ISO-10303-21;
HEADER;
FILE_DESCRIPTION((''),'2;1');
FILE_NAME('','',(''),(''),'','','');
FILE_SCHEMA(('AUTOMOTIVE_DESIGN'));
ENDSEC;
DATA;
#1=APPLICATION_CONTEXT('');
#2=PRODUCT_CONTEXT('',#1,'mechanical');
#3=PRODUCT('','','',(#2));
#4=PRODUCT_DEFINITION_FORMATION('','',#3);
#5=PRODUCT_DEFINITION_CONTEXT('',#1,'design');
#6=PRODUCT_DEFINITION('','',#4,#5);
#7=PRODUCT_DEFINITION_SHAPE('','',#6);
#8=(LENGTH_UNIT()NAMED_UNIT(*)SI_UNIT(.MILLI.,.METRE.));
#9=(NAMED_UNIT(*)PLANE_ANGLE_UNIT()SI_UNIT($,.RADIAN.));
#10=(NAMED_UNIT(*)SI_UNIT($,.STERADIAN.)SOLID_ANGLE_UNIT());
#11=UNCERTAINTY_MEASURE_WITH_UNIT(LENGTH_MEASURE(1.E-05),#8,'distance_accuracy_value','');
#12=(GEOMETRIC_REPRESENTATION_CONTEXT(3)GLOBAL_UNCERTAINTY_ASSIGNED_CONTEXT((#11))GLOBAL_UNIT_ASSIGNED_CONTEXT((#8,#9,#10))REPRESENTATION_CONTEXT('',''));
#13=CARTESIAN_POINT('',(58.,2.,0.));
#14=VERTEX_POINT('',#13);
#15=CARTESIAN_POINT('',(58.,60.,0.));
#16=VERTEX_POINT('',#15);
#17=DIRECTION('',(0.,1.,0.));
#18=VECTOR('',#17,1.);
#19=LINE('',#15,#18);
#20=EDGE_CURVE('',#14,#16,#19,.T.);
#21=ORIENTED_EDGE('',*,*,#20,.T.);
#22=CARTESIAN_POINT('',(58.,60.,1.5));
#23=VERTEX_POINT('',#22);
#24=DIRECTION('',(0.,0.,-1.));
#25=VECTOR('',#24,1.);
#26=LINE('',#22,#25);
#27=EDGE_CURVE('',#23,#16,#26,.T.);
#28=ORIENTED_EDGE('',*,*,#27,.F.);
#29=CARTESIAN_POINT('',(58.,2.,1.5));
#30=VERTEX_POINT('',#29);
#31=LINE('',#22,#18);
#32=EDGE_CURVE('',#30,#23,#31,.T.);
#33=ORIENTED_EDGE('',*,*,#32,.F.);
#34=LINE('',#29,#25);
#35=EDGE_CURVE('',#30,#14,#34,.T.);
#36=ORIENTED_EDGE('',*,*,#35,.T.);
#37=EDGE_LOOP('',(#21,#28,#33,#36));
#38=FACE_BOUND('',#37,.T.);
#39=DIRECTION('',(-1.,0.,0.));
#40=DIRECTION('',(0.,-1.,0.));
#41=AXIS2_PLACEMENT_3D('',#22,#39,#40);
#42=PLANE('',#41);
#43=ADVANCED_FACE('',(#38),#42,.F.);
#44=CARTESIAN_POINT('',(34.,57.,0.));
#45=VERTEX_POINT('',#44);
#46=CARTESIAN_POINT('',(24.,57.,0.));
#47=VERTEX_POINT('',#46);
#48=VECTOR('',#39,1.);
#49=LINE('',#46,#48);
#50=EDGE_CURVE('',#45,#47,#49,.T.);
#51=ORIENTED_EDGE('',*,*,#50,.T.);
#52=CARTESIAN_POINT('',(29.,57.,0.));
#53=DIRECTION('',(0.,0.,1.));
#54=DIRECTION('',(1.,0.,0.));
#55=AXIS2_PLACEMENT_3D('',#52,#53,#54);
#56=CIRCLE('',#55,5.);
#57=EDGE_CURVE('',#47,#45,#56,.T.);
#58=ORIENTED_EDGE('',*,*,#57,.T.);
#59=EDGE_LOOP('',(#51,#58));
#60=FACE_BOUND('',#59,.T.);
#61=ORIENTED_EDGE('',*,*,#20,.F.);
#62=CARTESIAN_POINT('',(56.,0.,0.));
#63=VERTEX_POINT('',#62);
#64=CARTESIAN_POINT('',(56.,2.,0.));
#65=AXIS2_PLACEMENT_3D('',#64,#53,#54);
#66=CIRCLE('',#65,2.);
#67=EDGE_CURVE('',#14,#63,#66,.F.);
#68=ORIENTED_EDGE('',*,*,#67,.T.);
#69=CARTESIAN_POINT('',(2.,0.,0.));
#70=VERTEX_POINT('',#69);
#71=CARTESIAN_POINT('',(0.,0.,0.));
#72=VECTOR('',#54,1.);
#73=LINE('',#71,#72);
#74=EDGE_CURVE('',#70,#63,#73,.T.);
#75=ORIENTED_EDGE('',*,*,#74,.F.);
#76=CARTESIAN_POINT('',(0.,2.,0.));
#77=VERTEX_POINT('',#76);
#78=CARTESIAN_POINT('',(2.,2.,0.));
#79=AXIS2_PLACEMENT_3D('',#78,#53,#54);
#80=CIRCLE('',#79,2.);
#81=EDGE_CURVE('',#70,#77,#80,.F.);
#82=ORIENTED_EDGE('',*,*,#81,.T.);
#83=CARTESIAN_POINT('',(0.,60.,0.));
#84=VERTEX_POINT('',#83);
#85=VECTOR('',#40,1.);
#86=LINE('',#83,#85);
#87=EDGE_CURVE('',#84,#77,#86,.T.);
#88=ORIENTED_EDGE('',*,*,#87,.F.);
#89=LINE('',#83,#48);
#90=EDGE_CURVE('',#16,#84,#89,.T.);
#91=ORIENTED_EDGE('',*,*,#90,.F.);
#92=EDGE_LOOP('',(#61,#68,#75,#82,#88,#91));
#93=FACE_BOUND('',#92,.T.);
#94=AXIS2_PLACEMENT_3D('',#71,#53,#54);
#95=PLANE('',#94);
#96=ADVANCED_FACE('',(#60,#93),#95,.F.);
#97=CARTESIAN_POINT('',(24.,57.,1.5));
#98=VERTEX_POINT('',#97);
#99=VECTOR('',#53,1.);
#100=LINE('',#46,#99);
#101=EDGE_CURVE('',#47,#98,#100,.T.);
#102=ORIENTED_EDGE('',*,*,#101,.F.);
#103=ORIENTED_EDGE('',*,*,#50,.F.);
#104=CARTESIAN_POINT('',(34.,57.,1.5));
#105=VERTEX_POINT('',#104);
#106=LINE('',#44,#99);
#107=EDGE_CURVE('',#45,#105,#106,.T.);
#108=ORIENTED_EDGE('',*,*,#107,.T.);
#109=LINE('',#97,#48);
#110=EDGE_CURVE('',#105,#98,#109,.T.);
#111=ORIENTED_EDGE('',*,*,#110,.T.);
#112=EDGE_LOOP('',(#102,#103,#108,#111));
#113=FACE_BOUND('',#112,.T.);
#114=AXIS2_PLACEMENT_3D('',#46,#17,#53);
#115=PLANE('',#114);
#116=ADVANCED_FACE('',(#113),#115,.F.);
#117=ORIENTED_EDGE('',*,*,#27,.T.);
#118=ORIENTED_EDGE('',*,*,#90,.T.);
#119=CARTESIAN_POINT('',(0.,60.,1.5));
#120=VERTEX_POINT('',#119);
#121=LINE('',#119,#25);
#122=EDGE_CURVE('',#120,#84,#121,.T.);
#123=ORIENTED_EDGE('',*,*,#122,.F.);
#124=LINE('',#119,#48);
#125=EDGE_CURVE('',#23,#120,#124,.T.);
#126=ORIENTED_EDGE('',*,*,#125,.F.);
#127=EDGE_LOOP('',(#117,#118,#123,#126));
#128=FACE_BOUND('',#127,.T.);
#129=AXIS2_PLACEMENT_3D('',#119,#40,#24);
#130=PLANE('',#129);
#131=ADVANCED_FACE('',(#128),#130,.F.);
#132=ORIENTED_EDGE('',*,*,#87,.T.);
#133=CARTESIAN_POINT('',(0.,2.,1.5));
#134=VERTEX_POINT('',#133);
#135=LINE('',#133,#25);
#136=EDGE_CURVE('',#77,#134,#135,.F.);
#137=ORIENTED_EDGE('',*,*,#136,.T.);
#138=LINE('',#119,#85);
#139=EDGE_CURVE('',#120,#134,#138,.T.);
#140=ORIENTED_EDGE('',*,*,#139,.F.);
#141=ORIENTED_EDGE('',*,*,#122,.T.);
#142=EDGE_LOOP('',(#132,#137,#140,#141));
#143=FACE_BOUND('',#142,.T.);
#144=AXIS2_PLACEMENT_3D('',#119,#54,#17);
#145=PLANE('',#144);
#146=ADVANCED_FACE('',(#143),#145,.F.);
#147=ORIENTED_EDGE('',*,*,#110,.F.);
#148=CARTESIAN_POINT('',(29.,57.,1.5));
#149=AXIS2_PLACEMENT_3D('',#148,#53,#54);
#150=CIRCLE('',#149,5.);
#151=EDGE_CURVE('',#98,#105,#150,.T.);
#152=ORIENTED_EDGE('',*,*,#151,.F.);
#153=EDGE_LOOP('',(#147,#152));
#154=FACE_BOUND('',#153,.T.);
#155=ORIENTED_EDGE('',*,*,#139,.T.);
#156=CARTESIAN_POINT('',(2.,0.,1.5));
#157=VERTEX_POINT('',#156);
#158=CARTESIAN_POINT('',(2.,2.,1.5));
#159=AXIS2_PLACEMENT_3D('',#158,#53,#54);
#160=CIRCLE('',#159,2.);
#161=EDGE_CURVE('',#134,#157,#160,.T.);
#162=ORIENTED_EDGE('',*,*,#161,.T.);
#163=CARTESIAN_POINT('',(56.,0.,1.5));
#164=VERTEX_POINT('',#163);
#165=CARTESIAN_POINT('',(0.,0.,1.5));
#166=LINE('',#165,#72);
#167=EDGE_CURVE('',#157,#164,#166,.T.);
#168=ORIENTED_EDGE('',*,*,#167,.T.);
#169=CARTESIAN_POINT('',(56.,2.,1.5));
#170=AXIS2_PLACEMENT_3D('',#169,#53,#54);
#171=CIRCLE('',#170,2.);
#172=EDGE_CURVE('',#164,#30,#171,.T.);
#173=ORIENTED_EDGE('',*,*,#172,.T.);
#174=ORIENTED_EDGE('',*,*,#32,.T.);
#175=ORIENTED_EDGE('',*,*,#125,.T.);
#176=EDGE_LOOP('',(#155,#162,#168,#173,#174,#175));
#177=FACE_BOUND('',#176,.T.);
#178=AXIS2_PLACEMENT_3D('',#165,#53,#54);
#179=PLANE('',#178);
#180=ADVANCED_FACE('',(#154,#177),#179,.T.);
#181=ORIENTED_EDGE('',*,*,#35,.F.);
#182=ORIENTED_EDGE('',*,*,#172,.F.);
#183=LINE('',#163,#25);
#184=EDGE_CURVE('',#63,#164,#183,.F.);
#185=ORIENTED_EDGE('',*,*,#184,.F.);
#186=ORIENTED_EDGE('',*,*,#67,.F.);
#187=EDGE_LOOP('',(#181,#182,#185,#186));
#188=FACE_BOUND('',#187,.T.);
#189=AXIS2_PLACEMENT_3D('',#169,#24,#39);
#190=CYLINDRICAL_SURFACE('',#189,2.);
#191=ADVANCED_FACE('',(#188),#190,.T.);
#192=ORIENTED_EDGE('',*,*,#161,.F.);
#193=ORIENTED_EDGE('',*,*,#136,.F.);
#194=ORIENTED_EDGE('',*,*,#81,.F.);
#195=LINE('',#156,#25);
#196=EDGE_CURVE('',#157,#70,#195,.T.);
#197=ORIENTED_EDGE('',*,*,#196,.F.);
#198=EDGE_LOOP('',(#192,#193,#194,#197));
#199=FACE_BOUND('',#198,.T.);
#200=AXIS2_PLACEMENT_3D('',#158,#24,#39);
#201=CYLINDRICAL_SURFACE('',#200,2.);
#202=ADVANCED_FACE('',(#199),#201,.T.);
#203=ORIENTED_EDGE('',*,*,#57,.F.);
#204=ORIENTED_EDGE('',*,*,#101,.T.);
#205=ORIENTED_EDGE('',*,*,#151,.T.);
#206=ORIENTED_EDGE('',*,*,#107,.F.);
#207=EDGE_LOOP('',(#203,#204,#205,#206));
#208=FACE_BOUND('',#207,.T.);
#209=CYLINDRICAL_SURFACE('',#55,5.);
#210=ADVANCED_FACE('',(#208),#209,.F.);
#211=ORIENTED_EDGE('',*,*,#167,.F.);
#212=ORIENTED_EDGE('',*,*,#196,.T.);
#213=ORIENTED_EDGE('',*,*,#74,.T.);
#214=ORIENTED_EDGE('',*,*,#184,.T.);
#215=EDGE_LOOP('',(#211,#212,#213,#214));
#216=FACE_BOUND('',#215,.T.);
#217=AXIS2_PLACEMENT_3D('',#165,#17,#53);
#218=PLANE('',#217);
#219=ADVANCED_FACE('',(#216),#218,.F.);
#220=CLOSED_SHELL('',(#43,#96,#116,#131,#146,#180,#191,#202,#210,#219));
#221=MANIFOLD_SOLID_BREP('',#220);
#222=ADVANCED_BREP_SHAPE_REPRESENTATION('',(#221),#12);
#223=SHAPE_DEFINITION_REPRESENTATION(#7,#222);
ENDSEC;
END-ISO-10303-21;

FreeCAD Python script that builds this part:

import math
import FreeCAD as App
import Part
import Sketcher
Q = App.Units.Quantity


def edges_at(feature, points):
    """Names of the edges that pass closest to the given points."""
    edges = feature.Shape.Edges
    near = lambda p: min(range(len(edges)), key=lambda i: edges[i].distToShape(Part.Vertex(*p))[0])
    return sorted({f"Edge{near(p) + 1}" for p in points})


def add_polygon(sketch, points):
    """Adds a closed chain of lines whose ends are joined by coincident constraints."""
    first, n = sketch.GeometryCount, len(points)
    for a, b in zip(points, points[1:] + points[:1]):
        sketch.addGeometry(Part.LineSegment(App.Vector(*a, 0), App.Vector(*b, 0)), False)
    for i in range(n):
        sketch.addConstraint(Sketcher.Constraint("Coincident", first + i, 2, first + (i + 1) % n, 1))

doc = App.newDocument("Part")
params = doc.addObject("Spreadsheet::Sheet", "Params")
for row, (alias, value) in enumerate([
    ("sketch1_width", "58 mm"),
    ("sketch1_height", "60 mm"),
    ("pad1_length", "1.5 mm"),
    ("fillet_radius", "2 mm"),
    ("sketch2_radius", "5 mm"),
], start=1):
    params.set(f"A{row}", alias)
    params.set(f"B{row}", "=" + value)
    params.setAlias(f"B{row}", alias)

body = doc.addObject("PartDesign::Body", "Body")

sketch1 = doc.addObject("Sketcher::SketchObject", "Sketch")
body.addObject(sketch1)
sketch1.AttachmentSupport = (doc.XY_Plane, [""])
sketch1.MapMode = "FlatFace"
add_polygon(sketch1, [(0, 60), (0, 0), (58, 0), (58, 60)])
sketch1.addConstraint(Sketcher.Constraint("Vertical", 0))
sketch1.addConstraint(Sketcher.Constraint("Horizontal", 1))
sketch1.addConstraint(Sketcher.Constraint("Vertical", 2))
sketch1.addConstraint(Sketcher.Constraint("Horizontal", 3))
sketch1.addConstraint(Sketcher.Constraint("Coincident", 0, 2, -1, 1))
sketch1.addConstraint(Sketcher.Constraint("DistanceX", 1, 1, 1, 2, Q("58 mm")))
sketch1.addConstraint(Sketcher.Constraint("DistanceY", 0, 2, 0, 1, Q("60 mm")))
sketch1.setExpression("Constraints[9]", "Params.sketch1_width")
sketch1.setExpression("Constraints[10]", "Params.sketch1_height")
pad1 = doc.addObject("PartDesign::Pad", "Pad")
body.addObject(pad1)
pad1.Profile = sketch1
pad1.setExpression("Length", "Params.pad1_length")
doc.recompute()

fillet = doc.addObject("PartDesign::Fillet", "Fillet")
body.addObject(fillet)
fillet.Base = (pad1, edges_at(pad1, [(58, 0, 0.75), (0, 0, 0.75)]))
fillet.setExpression("Radius", "Params.fillet_radius")

sketch2 = doc.addObject("Sketcher::SketchObject", "Sketch001")
body.addObject(sketch2)
sketch2.AttachmentSupport = (doc.XY_Plane, [""])
sketch2.MapMode = "FlatFace"
sketch2.AttachmentOffset = App.Placement(App.Vector(0, 0, 1.5), App.Rotation())
sketch2.addGeometry(Part.LineSegment(App.Vector(34, 57, 0), App.Vector(24, 57, 0)), False)
sketch2.addGeometry(Part.ArcOfCircle(Part.Circle(App.Vector(29, 57, 0), App.Vector(0, 0, 1), 5), math.radians(180), math.radians(360)), False)
sketch2.addConstraint(Sketcher.Constraint("Coincident", 0, 1, 1, 2))
sketch2.addConstraint(Sketcher.Constraint("Coincident", 1, 1, 0, 2))
sketch2.addConstraint(Sketcher.Constraint("Horizontal", 0))
sketch2.addConstraint(Sketcher.Constraint("Horizontal", 1, 3, 0, 1))
sketch2.addConstraint(Sketcher.Constraint("Radius", 1, Q("5 mm")))
sketch2.addConstraint(Sketcher.Constraint("DistanceX", -1, 1, 1, 3, Q("29 mm")))
sketch2.addConstraint(Sketcher.Constraint("DistanceY", -1, 1, 1, 3, Q("57 mm")))
sketch2.setExpression("Constraints[4]", "Params.sketch2_radius")
pocket1 = doc.addObject("PartDesign::Pocket", "Pocket")
body.addObject(pocket1)
pocket1.Profile = sketch2
pocket1.Type = "ThroughAll"

doc.recompute()
